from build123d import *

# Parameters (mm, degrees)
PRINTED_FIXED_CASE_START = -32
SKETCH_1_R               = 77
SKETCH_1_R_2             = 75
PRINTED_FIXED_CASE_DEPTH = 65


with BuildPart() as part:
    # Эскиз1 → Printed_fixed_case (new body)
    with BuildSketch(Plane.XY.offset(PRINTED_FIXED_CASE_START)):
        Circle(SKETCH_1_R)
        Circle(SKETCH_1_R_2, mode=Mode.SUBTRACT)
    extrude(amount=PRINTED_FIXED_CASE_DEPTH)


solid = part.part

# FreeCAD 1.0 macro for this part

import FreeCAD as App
import Part
import Sketcher
from FreeCAD import Vector

doc = App.newDocument("Part")
params = doc.addObject("Spreadsheet::Sheet", "Params")
for row, (alias, value) in enumerate([
    ("sketch1_diameter", "154 mm"),
    ("sketch1_diameter2", "150 mm"),
    ("pad1_length", "65 mm"),
], start=1):
    params.set(f"A{row}", alias)
    params.set(f"B{row}", "=" + value)
    params.setAlias(f"B{row}", alias)

body = doc.addObject("PartDesign::Body", "Body")

sketch1 = body.newObject("Sketcher::SketchObject", "Sketch")
sketch1.AttachmentSupport = (doc.getObject("XY_Plane"), [""])
sketch1.MapMode = "FlatFace"
sketch1.AttachmentOffset = App.Placement(Vector(0, 0, -32), App.Rotation())
sketch1.addGeometry([
    Part.Circle(Vector(0, 0, 0), Vector(0, 0, 1), 77),
    Part.Circle(Vector(0, 0, 0), Vector(0, 0, 1), 75),
], False)
sketch1.addConstraint([
    Sketcher.Constraint("Coincident", 0, 3, -1, 1),
    Sketcher.Constraint("Coincident", 1, 3, -1, 1),
    Sketcher.Constraint("Diameter", 0, 154.0),
    Sketcher.Constraint("Diameter", 1, 150.0),
])
sketch1.setExpression("Constraints[2]", "Params.sketch1_diameter")
sketch1.setExpression("Constraints[3]", "Params.sketch1_diameter2")
pad1 = body.newObject("PartDesign::Pad", "Pad")
pad1.Profile = sketch1
pad1.setExpression("Length", "Params.pad1_length")

doc.recompute()
